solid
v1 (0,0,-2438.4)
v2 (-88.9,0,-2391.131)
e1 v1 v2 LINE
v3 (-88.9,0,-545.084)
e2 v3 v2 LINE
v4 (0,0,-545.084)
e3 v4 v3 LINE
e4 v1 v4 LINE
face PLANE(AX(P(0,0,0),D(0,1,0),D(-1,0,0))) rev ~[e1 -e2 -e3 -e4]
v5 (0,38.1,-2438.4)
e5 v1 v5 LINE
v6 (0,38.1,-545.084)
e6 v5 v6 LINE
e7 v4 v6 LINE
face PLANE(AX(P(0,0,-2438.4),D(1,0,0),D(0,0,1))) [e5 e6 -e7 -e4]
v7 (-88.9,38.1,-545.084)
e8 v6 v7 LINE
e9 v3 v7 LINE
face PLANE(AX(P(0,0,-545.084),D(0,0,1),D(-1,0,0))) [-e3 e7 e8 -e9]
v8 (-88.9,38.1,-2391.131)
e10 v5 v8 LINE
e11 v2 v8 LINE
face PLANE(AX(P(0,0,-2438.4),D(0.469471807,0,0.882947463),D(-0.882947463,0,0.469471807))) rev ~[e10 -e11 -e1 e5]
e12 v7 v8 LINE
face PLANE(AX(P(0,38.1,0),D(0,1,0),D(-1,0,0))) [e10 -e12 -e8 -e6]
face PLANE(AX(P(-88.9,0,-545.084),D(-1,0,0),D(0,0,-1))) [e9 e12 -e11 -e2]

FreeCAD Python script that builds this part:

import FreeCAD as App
import Part
import Sketcher
Q = App.Units.Quantity


def add_polygon(sketch, points):
    """Adds a closed chain of lines whose ends are joined by coincident constraints."""
    first, n = sketch.GeometryCount, len(points)
    for a, b in zip(points, points[1:] + points[:1]):
        sketch.addGeometry(Part.LineSegment(App.Vector(*a, 0), App.Vector(*b, 0)), False)
    for i in range(n):
        sketch.addConstraint(Sketcher.Constraint("Coincident", first + i, 2, first + (i + 1) % n, 1))

doc = App.newDocument("Part")
body = doc.addObject("PartDesign::Body", "Body")

sketch1 = body.newObject("Sketcher::SketchObject", "Sketch")
sketch1.AttachmentSupport = (doc.getObject("XZ_Plane"), [""])
sketch1.MapMode = "FlatFace"
add_polygon(sketch1, [(-89, -2391), (-89, -545), (0, -545), (0, -2438)])
sketch1.addConstraint([
    Sketcher.Constraint("Vertical", 0),
    Sketcher.Constraint("Horizontal", 1),
    Sketcher.Constraint("Vertical", 2),
    Sketcher.Constraint("PointOnObject", 1, 2, -2),
    Sketcher.Constraint("DistanceX", 1, 1, 1, 2, Q("3.5 in")),
    Sketcher.Constraint("DistanceY", 2, 2, -1, 1, Q("96 in")),
    Sketcher.Constraint("Angle", 3, Q("152 deg")),
    Sketcher.Constraint("DistanceY", 2, 2, 2, 1, Q("74.54 in")),
])
pad1 = body.newObject("PartDesign::Pad", "Pad")
pad1.Profile = sketch1
pad1.Length = Q("1.5 in")
pad1.Reversed = True

doc.recompute()
